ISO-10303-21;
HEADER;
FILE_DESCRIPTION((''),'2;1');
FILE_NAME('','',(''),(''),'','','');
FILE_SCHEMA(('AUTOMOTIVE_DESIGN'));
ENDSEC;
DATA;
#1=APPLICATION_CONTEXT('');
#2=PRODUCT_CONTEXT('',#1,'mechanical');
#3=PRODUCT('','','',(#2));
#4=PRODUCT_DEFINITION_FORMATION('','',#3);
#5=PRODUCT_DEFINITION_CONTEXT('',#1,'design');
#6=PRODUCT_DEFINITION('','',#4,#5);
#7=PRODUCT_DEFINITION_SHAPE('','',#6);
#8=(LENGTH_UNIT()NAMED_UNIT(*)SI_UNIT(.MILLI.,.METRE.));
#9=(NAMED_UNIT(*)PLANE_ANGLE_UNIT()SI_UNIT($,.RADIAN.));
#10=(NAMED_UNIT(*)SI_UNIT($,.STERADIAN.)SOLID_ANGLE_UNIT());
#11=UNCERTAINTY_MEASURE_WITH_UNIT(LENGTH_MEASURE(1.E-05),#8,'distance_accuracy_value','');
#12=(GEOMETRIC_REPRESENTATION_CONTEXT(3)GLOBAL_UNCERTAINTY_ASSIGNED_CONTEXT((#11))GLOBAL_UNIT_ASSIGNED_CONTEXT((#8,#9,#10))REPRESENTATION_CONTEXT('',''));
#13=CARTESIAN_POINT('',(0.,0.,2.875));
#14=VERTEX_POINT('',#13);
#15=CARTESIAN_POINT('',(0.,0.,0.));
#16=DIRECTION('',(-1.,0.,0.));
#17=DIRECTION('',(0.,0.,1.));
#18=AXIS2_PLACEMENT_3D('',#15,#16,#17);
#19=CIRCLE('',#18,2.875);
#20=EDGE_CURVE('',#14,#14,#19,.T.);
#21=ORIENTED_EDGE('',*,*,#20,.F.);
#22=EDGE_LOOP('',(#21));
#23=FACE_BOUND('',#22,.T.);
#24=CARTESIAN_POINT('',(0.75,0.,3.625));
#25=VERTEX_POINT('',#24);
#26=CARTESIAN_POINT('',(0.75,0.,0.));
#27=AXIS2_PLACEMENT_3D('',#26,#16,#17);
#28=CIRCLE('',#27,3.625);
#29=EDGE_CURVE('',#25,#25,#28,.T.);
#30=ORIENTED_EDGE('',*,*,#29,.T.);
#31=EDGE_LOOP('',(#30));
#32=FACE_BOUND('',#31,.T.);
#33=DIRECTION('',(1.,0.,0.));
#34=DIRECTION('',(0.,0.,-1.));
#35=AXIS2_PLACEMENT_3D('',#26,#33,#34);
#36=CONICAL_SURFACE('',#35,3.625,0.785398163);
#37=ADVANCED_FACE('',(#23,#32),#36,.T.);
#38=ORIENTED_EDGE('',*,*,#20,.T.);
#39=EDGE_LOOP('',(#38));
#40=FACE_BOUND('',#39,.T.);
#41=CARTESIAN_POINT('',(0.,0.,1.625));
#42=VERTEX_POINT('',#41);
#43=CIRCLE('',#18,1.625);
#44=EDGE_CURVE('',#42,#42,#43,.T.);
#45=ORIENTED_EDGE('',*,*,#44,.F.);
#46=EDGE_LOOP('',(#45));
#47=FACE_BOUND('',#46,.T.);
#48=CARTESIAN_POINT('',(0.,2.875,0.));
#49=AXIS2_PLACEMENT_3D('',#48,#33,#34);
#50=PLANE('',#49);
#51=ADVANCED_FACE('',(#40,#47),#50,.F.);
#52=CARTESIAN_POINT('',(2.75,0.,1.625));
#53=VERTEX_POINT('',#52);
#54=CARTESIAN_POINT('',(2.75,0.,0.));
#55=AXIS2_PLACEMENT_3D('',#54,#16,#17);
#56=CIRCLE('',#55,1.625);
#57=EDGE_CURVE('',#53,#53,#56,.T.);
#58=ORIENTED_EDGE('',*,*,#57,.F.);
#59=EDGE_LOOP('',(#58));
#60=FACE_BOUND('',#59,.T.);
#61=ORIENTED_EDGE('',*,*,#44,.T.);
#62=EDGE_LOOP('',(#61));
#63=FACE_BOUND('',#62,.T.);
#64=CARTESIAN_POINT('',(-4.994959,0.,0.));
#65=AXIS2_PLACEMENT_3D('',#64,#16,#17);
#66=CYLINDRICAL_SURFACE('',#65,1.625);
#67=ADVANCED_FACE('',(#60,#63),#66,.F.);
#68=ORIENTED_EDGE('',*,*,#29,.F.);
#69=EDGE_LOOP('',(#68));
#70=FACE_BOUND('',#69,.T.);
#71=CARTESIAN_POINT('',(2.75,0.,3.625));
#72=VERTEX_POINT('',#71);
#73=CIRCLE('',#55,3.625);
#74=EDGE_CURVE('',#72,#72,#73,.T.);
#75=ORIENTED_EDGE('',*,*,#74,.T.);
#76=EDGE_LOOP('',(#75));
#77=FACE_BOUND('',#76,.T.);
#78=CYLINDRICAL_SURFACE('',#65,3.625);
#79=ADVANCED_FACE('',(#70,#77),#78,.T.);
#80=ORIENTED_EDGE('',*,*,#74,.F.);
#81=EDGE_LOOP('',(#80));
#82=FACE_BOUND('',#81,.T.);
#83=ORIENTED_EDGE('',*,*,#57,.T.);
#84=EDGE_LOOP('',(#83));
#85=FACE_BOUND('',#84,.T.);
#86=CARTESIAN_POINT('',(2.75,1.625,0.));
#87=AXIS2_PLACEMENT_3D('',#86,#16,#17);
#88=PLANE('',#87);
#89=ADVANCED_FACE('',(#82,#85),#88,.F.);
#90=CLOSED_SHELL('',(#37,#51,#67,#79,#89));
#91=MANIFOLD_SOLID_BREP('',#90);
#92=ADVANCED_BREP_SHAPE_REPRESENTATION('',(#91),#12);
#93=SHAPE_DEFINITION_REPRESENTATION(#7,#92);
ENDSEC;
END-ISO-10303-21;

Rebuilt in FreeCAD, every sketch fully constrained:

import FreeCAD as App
import Part
import Sketcher
Q = App.Units.Quantity


def add_polygon(sketch, points):
    """Adds a closed chain of lines whose ends are joined by coincident constraints."""
    first, n = sketch.GeometryCount, len(points)
    for a, b in zip(points, points[1:] + points[:1]):
        sketch.addGeometry(Part.LineSegment(App.Vector(*a, 0), App.Vector(*b, 0)), False)
    for i in range(n):
        sketch.addConstraint(Sketcher.Constraint("Coincident", first + i, 2, first + (i + 1) % n, 1))

doc = App.newDocument("Part")
params = doc.addObject("Spreadsheet::Sheet", "Params")
for row, (alias, value) in enumerate([
    ("sketch1_width", "2 mm"),
    ("sketch1_width2", "2.75 mm"),
    ("revolution_angle", "360 deg"),
], start=1):
    params.set(f"A{row}", alias)
    params.set(f"B{row}", "=" + value)
    params.setAlias(f"B{row}", alias)

body = doc.addObject("PartDesign::Body", "Body")

# Sketch on XY plane
sketch1 = doc.addObject("Sketcher::SketchObject", "Sketch")
body.addObject(sketch1)
sketch1.AttachmentSupport = (doc.XY_Plane, [""])
sketch1.MapMode = "FlatFace"
add_polygon(sketch1, [(0.8, 3.6), (0, 2.9), (0, 1.6), (2.8, 1.6), (2.8, 3.6)])  # lines 0-4
sketch1.addConstraint([
    Sketcher.Constraint("Vertical", 1),
    Sketcher.Constraint("Horizontal", 2),
    Sketcher.Constraint("Vertical", 3),
    Sketcher.Constraint("Horizontal", 4),
    Sketcher.Constraint("PointOnObject", 0, 2, -2),
    Sketcher.Constraint("Equal", 4, 3),
    Sketcher.Constraint("DistanceX", 4, 2, 4, 1, 2.0),
    Sketcher.Constraint("Angle", 0, Q("-135 deg")),
    Sketcher.Constraint("DistanceX", 2, 1, 2, 2, 2.75),
    Sketcher.Constraint("DistanceY", -1, 1, 0, 2, 2.875),
])
sketch1.setExpression("Constraints[11]", "Params.sketch1_width")
sketch1.setExpression("Constraints[13]", "Params.sketch1_width2")
revolution = doc.addObject("PartDesign::Revolution", "Revolution")
body.addObject(revolution)
revolution.Profile = sketch1
revolution.ReferenceAxis = (sketch1, ["H_Axis"])
revolution.setExpression("Angle", "Params.revolution_angle")

doc.recompute()
